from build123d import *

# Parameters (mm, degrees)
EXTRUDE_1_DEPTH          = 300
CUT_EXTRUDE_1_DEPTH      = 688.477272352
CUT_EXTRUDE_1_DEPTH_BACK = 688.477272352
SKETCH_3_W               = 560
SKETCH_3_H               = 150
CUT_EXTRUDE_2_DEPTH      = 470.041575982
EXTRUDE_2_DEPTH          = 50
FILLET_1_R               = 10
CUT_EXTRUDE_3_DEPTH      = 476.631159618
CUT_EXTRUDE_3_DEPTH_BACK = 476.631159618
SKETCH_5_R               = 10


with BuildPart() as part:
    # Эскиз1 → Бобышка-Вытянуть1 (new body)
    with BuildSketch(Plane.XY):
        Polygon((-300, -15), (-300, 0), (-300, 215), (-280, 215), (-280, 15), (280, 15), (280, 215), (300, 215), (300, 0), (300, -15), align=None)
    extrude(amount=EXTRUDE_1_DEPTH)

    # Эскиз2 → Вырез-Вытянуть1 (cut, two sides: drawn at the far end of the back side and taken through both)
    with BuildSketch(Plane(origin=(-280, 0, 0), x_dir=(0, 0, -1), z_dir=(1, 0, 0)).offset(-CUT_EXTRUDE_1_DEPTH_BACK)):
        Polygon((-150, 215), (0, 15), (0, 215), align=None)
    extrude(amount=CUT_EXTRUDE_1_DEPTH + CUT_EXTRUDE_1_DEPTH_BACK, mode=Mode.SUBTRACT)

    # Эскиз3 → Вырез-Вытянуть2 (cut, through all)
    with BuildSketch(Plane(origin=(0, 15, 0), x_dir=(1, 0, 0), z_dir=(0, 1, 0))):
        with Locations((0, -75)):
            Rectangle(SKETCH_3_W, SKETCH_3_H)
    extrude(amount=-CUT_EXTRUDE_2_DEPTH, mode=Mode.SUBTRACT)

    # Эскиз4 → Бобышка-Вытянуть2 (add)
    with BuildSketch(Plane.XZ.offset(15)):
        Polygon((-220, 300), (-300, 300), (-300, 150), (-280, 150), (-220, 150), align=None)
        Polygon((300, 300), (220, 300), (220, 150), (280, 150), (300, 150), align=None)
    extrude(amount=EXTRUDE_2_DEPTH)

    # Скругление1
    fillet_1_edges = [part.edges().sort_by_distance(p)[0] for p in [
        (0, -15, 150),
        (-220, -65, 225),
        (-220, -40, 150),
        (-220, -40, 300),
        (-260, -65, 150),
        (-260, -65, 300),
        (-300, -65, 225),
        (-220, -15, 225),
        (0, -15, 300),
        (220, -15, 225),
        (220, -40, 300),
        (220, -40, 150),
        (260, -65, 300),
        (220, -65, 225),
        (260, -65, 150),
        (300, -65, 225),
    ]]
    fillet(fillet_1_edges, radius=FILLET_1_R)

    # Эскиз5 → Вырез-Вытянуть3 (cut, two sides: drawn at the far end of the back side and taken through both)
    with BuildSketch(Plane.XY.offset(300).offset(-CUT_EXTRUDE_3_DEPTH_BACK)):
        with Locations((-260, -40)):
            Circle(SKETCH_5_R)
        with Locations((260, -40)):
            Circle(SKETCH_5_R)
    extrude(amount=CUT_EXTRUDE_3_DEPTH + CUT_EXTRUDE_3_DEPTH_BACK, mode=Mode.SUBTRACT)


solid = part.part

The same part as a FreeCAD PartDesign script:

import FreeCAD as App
import Part
import Sketcher
Q = App.Units.Quantity


def edges_at(feature, points):
    """Names of the edges that pass closest to the given points."""
    edges = feature.Shape.Edges
    near = lambda p: min(range(len(edges)), key=lambda i: edges[i].distToShape(Part.Vertex(*p))[0])
    return sorted({f"Edge{near(p) + 1}" for p in points})

doc = App.newDocument("Part")
body = doc.addObject("PartDesign::Body", "Body")

# Sketch on XY plane
sketch1 = doc.addObject("Sketcher::SketchObject", "Sketch")
body.addObject(sketch1)
sketch1.AttachmentSupport = (doc.XY_Plane, [""])
sketch1.MapMode = "FlatFace"
sketch1.addGeometry([
    Part.LineSegment(App.Vector(-300, 215, 0), App.Vector(-300, -15, 0)),  # 0
    Part.LineSegment(App.Vector(-300, -15, 0), App.Vector(300, -15, 0)),  # 1
    Part.LineSegment(App.Vector(300, -15, 0), App.Vector(300, 215, 0)),  # 2
    Part.LineSegment(App.Vector(300, 215, 0), App.Vector(280, 215, 0)),  # 3
    Part.LineSegment(App.Vector(280, 215, 0), App.Vector(280, 15, 0)),  # 4
    Part.LineSegment(App.Vector(280, 15, 0), App.Vector(-280, 15, 0)),  # 5
    Part.LineSegment(App.Vector(-280, 15, 0), App.Vector(-280, 215, 0)),  # 6
    Part.LineSegment(App.Vector(-280, 215, 0), App.Vector(-300, 215, 0)),  # 7
], False)
sketch1.addConstraint([
    Sketcher.Constraint("Coincident", 0, 2, 1, 1),
    Sketcher.Constraint("Coincident", 1, 2, 2, 1),
    Sketcher.Constraint("Coincident", 2, 2, 3, 1),
    Sketcher.Constraint("Coincident", 3, 2, 4, 1),
    Sketcher.Constraint("Coincident", 4, 2, 5, 1),
    Sketcher.Constraint("Coincident", 5, 2, 6, 1),
    Sketcher.Constraint("Coincident", 6, 2, 7, 1),
    Sketcher.Constraint("Coincident", 7, 2, 0, 1),
    Sketcher.Constraint("Vertical", 0),
    Sketcher.Constraint("Horizontal", 1),
    Sketcher.Constraint("Vertical", 2),
    Sketcher.Constraint("Horizontal", 3),
    Sketcher.Constraint("Vertical", 4),
    Sketcher.Constraint("Horizontal", 5),
    Sketcher.Constraint("Vertical", 6),
    Sketcher.Constraint("Horizontal", 7),
    Sketcher.Constraint("Symmetric", 3, 2, 6, 2, -2),
    Sketcher.Constraint("Equal", 3, 7),
    Sketcher.Constraint("DistanceX", 1, 1, 1, 2, Q("600 mm")),
    Sketcher.Constraint("DistanceX", 3, 2, 3, 1, Q("20 mm")),
    Sketcher.Constraint("DistanceY", 0, 2, 0, 1, Q("230 mm")),
    Sketcher.Constraint("DistanceY", 4, 2, 4, 1, Q("200 mm")),
    Sketcher.Constraint("DistanceY", 0, 2, -1, 1, Q("15 mm")),
])
pad1 = doc.addObject("PartDesign::Pad", "Pad")
body.addObject(pad1)
pad1.Profile = sketch1
pad1.Length = 300

# Sketch on YZ plane
sketch2 = doc.addObject("Sketcher::SketchObject", "Sketch001")
body.addObject(sketch2)
sketch2.AttachmentSupport = (doc.YZ_Plane, [""])
sketch2.MapMode = "FlatFace"
sketch2.AttachmentOffset = App.Placement(App.Vector(0, 0, -280), App.Rotation())
sketch2.addGeometry([
    Part.LineSegment(App.Vector(215, 150, 0), App.Vector(15, 0, 0)),
    Part.LineSegment(App.Vector(15, 0, 0), App.Vector(215, 0, 0)),
    Part.LineSegment(App.Vector(215, 0, 0), App.Vector(215, 150, 0)),
], False)
sketch2.addConstraint([
    Sketcher.Constraint("Coincident", 0, 2, 1, 1),
    Sketcher.Constraint("Coincident", 1, 2, 2, 1),
    Sketcher.Constraint("Coincident", 2, 2, 0, 1),
    Sketcher.Constraint("Horizontal", 1),
    Sketcher.Constraint("Vertical", 2),
    Sketcher.Constraint("PointOnObject", 0, 2, -1),
    Sketcher.Constraint("DistanceX", 1, 1, 1, 2, Q("200 mm")),
    Sketcher.Constraint("DistanceY", 2, 1, 2, 2, Q("150 mm")),
    Sketcher.Constraint("DistanceX", -1, 1, 0, 2, Q("15 mm")),
])
pocket1 = doc.addObject("PartDesign::Pocket", "Pocket")
body.addObject(pocket1)
pocket1.Profile = sketch2
pocket1.Type = "ThroughAll"
pocket1.Midplane = True

# Sketch on XZ plane
sketch3 = doc.addObject("Sketcher::SketchObject", "Sketch002")
body.addObject(sketch3)
sketch3.AttachmentSupport = (doc.XZ_Plane, [""])
sketch3.MapMode = "FlatFace"
sketch3.AttachmentOffset = App.Placement(App.Vector(0, 0, -15), App.Rotation())
sketch3.addGeometry([
    Part.LineSegment(App.Vector(-280, 0, 0), App.Vector(-280, 150, 0)),
    Part.LineSegment(App.Vector(-280, 150, 0), App.Vector(280, 150, 0)),
    Part.LineSegment(App.Vector(280, 150, 0), App.Vector(280, 0, 0)),
    Part.LineSegment(App.Vector(280, 0, 0), App.Vector(-280, 0, 0)),
], False)
sketch3.addConstraint([
    Sketcher.Constraint("Coincident", 0, 2, 1, 1),
    Sketcher.Constraint("Coincident", 1, 2, 2, 1),
    Sketcher.Constraint("Coincident", 2, 2, 3, 1),
    Sketcher.Constraint("Coincident", 3, 2, 0, 1),
    Sketcher.Constraint("Vertical", 0),
    Sketcher.Constraint("Horizontal", 1),
    Sketcher.Constraint("Vertical", 2),
    Sketcher.Constraint("Horizontal", 3),
    Sketcher.Constraint("Symmetric", 2, 2, 3, 2, -1, 1),
    Sketcher.Constraint("DistanceX", 1, 1, 1, 2, Q("560 mm")),
    Sketcher.Constraint("DistanceY", 0, 1, 0, 2, Q("150 mm")),
])
pocket2 = doc.addObject("PartDesign::Pocket", "Pocket001")
body.addObject(pocket2)
pocket2.Profile = sketch3
pocket2.Type = "ThroughAll"
pocket2.Reversed = True

# Sketch on XZ plane
sketch4 = doc.addObject("Sketcher::SketchObject", "Sketch003")
body.addObject(sketch4)
sketch4.AttachmentSupport = (doc.XZ_Plane, [""])
sketch4.MapMode = "FlatFace"
sketch4.AttachmentOffset = App.Placement(App.Vector(0, 0, 15), App.Rotation())
sketch4.addGeometry([
    Part.LineSegment(App.Vector(-220, 300, 0), App.Vector(-300, 300, 0)),  # 0
    Part.LineSegment(App.Vector(-300, 300, 0), App.Vector(-300, 150, 0)),  # 1
    Part.LineSegment(App.Vector(-300, 150, 0), App.Vector(-220, 150, 0)),  # 2
    Part.LineSegment(App.Vector(-220, 150, 0), App.Vector(-220, 300, 0)),  # 3
    Part.LineSegment(App.Vector(300, 300, 0), App.Vector(220, 300, 0)),  # 4
    Part.LineSegment(App.Vector(220, 300, 0), App.Vector(220, 150, 0)),  # 5
    Part.LineSegment(App.Vector(220, 150, 0), App.Vector(300, 150, 0)),  # 6
    Part.LineSegment(App.Vector(300, 150, 0), App.Vector(300, 300, 0)),  # 7
], False)
sketch4.addConstraint([
    Sketcher.Constraint("Coincident", 0, 2, 1, 1),
    Sketcher.Constraint("Coincident", 1, 2, 2, 1),
    Sketcher.Constraint("Coincident", 2, 2, 3, 1),
    Sketcher.Constraint("Coincident", 3, 2, 0, 1),
    Sketcher.Constraint("Coincident", 4, 2, 5, 1),
    Sketcher.Constraint("Coincident", 5, 2, 6, 1),
    Sketcher.Constraint("Coincident", 6, 2, 7, 1),
    Sketcher.Constraint("Coincident", 7, 2, 4, 1),
    Sketcher.Constraint("Horizontal", 0),
    Sketcher.Constraint("Vertical", 1),
    Sketcher.Constraint("Horizontal", 2),
    Sketcher.Constraint("Vertical", 3),
    Sketcher.Constraint("Horizontal", 4),
    Sketcher.Constraint("Vertical", 5),
    Sketcher.Constraint("Horizontal", 6),
    Sketcher.Constraint("Vertical", 7),
    Sketcher.Constraint("Symmetric", 3, 2, 4, 2, -2),
    Sketcher.Constraint("Symmetric", 1, 2, 6, 2, -2),
    Sketcher.Constraint("DistanceX", 0, 2, 0, 1, Q("80 mm")),
    Sketcher.Constraint("DistanceY", 1, 2, 1, 1, Q("150 mm")),
    Sketcher.Constraint("DistanceX", 0, 2, -1, 1, Q("300 mm")),
    Sketcher.Constraint("DistanceY", -1, 1, 0, 2, Q("300 mm")),
])
pad2 = doc.addObject("PartDesign::Pad", "Pad001")
body.addObject(pad2)
pad2.Profile = sketch4
pad2.Length = 50
doc.recompute()

fillet = doc.addObject("PartDesign::Fillet", "Fillet")
body.addObject(fillet)
fillet.Base = (pad2, edges_at(pad2, [
    (0, -15, 150),
    (-220, -65, 225),
    (-220, -40, 150),
    (-220, -40, 300),
    (-260, -65, 150),
    (-260, -65, 300),
    (-300, -65, 225),
    (-220, -15, 225),
    (0, -15, 300),
    (220, -15, 225),
    (220, -40, 300),
    (220, -40, 150),
    (260, -65, 300),
    (220, -65, 225),
    (260, -65, 150),
    (300, -65, 225),
]))
fillet.Radius = 10

# Sketch on XY plane
sketch5 = doc.addObject("Sketcher::SketchObject", "Sketch004")
body.addObject(sketch5)
sketch5.AttachmentSupport = (doc.XY_Plane, [""])
sketch5.MapMode = "FlatFace"
sketch5.AttachmentOffset = App.Placement(App.Vector(0, 0, 300), App.Rotation())
sketch5.addGeometry([
    Part.Circle(App.Vector(-260, -40, 0), App.Vector(0, 0, 1), 10),
    Part.Circle(App.Vector(260, -40, 0), App.Vector(0, 0, 1), 10),
], False)
sketch5.addConstraint([
    Sketcher.Constraint("Equal", 0, 1),
    Sketcher.Constraint("Symmetric", 0, 3, 1, 3, -2),
    Sketcher.Constraint("Diameter", 0, Q("20 mm")),
    Sketcher.Constraint("DistanceX", 0, 3, -1, 1, Q("260 mm")),
    Sketcher.Constraint("DistanceY", 0, 3, -1, 1, Q("40 mm")),
])
pocket3 = doc.addObject("PartDesign::Pocket", "Pocket002")
body.addObject(pocket3)
pocket3.Profile = sketch5
pocket3.Type = "ThroughAll"
pocket3.Midplane = True

doc.recompute()
